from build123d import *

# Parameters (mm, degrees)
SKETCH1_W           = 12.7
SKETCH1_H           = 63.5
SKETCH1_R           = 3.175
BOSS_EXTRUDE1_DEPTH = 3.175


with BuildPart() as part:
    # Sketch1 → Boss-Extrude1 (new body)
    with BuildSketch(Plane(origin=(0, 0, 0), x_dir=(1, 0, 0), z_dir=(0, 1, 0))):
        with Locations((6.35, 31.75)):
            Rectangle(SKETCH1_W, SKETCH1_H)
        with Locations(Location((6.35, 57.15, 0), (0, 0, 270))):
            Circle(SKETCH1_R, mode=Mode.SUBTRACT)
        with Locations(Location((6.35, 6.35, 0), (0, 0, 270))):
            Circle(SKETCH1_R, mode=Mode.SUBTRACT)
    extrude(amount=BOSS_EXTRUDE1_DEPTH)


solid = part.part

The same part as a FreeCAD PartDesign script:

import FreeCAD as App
import Part
import Sketcher
Q = App.Units.Quantity


def add_polygon(sketch, points):
    """Adds a closed chain of lines whose ends are joined by coincident constraints."""
    first, n = sketch.GeometryCount, len(points)
    for a, b in zip(points, points[1:] + points[:1]):
        sketch.addGeometry(Part.LineSegment(App.Vector(*a, 0), App.Vector(*b, 0)), False)
    for i in range(n):
        sketch.addConstraint(Sketcher.Constraint("Coincident", first + i, 2, first + (i + 1) % n, 1))

doc = App.newDocument("Part")
body = doc.addObject("PartDesign::Body", "Body")

# Sketch on XZ plane
sketch1 = body.newObject("Sketcher::SketchObject", "Sketch")
sketch1.AttachmentSupport = (doc.getObject("XZ_Plane"), [""])
sketch1.MapMode = "FlatFace"
add_polygon(sketch1, [(0, -63.5), (0, 0), (12.7, 0), (12.7, -63.5)])  # lines 0-3
sketch1.addGeometry(Part.Circle(App.Vector(6.35, -6.35, 0), App.Vector(0, 0, 1), 3.175), False)  # 4
sketch1.addGeometry(Part.Circle(App.Vector(6.35, -57.15, 0), App.Vector(0, 0, 1), 3.175), False)  # 5
sketch1.addConstraint([
    Sketcher.Constraint("Vertical", 0),
    Sketcher.Constraint("Horizontal", 1),
    Sketcher.Constraint("Vertical", 2),
    Sketcher.Constraint("Horizontal", 3),
    Sketcher.Constraint("Coincident", 0, 2, -1, 1),
    Sketcher.Constraint("Equal", 4, 5),
    Sketcher.Constraint("Vertical", 4, 3, 5, 3),
    Sketcher.Constraint("Diameter", 4, Q("0.25 in")),
    Sketcher.Constraint("DistanceX", 1, 1, 1, 2, Q("0.5 in")),
    Sketcher.Constraint("DistanceY", 0, 1, 0, 2, Q("2.5 in")),
    Sketcher.Constraint("DistanceY", 5, 3, 4, 3, Q("2 in")),
    Sketcher.Constraint("DistanceX", -1, 1, 4, 3, Q("0.25 in")),
    Sketcher.Constraint("DistanceY", 4, 3, -1, 1, Q("0.25 in")),
])
pad1 = body.newObject("PartDesign::Pad", "Pad")
pad1.Profile = sketch1
pad1.Length = Q("0.125 in")
pad1.Reversed = True

doc.recompute()
